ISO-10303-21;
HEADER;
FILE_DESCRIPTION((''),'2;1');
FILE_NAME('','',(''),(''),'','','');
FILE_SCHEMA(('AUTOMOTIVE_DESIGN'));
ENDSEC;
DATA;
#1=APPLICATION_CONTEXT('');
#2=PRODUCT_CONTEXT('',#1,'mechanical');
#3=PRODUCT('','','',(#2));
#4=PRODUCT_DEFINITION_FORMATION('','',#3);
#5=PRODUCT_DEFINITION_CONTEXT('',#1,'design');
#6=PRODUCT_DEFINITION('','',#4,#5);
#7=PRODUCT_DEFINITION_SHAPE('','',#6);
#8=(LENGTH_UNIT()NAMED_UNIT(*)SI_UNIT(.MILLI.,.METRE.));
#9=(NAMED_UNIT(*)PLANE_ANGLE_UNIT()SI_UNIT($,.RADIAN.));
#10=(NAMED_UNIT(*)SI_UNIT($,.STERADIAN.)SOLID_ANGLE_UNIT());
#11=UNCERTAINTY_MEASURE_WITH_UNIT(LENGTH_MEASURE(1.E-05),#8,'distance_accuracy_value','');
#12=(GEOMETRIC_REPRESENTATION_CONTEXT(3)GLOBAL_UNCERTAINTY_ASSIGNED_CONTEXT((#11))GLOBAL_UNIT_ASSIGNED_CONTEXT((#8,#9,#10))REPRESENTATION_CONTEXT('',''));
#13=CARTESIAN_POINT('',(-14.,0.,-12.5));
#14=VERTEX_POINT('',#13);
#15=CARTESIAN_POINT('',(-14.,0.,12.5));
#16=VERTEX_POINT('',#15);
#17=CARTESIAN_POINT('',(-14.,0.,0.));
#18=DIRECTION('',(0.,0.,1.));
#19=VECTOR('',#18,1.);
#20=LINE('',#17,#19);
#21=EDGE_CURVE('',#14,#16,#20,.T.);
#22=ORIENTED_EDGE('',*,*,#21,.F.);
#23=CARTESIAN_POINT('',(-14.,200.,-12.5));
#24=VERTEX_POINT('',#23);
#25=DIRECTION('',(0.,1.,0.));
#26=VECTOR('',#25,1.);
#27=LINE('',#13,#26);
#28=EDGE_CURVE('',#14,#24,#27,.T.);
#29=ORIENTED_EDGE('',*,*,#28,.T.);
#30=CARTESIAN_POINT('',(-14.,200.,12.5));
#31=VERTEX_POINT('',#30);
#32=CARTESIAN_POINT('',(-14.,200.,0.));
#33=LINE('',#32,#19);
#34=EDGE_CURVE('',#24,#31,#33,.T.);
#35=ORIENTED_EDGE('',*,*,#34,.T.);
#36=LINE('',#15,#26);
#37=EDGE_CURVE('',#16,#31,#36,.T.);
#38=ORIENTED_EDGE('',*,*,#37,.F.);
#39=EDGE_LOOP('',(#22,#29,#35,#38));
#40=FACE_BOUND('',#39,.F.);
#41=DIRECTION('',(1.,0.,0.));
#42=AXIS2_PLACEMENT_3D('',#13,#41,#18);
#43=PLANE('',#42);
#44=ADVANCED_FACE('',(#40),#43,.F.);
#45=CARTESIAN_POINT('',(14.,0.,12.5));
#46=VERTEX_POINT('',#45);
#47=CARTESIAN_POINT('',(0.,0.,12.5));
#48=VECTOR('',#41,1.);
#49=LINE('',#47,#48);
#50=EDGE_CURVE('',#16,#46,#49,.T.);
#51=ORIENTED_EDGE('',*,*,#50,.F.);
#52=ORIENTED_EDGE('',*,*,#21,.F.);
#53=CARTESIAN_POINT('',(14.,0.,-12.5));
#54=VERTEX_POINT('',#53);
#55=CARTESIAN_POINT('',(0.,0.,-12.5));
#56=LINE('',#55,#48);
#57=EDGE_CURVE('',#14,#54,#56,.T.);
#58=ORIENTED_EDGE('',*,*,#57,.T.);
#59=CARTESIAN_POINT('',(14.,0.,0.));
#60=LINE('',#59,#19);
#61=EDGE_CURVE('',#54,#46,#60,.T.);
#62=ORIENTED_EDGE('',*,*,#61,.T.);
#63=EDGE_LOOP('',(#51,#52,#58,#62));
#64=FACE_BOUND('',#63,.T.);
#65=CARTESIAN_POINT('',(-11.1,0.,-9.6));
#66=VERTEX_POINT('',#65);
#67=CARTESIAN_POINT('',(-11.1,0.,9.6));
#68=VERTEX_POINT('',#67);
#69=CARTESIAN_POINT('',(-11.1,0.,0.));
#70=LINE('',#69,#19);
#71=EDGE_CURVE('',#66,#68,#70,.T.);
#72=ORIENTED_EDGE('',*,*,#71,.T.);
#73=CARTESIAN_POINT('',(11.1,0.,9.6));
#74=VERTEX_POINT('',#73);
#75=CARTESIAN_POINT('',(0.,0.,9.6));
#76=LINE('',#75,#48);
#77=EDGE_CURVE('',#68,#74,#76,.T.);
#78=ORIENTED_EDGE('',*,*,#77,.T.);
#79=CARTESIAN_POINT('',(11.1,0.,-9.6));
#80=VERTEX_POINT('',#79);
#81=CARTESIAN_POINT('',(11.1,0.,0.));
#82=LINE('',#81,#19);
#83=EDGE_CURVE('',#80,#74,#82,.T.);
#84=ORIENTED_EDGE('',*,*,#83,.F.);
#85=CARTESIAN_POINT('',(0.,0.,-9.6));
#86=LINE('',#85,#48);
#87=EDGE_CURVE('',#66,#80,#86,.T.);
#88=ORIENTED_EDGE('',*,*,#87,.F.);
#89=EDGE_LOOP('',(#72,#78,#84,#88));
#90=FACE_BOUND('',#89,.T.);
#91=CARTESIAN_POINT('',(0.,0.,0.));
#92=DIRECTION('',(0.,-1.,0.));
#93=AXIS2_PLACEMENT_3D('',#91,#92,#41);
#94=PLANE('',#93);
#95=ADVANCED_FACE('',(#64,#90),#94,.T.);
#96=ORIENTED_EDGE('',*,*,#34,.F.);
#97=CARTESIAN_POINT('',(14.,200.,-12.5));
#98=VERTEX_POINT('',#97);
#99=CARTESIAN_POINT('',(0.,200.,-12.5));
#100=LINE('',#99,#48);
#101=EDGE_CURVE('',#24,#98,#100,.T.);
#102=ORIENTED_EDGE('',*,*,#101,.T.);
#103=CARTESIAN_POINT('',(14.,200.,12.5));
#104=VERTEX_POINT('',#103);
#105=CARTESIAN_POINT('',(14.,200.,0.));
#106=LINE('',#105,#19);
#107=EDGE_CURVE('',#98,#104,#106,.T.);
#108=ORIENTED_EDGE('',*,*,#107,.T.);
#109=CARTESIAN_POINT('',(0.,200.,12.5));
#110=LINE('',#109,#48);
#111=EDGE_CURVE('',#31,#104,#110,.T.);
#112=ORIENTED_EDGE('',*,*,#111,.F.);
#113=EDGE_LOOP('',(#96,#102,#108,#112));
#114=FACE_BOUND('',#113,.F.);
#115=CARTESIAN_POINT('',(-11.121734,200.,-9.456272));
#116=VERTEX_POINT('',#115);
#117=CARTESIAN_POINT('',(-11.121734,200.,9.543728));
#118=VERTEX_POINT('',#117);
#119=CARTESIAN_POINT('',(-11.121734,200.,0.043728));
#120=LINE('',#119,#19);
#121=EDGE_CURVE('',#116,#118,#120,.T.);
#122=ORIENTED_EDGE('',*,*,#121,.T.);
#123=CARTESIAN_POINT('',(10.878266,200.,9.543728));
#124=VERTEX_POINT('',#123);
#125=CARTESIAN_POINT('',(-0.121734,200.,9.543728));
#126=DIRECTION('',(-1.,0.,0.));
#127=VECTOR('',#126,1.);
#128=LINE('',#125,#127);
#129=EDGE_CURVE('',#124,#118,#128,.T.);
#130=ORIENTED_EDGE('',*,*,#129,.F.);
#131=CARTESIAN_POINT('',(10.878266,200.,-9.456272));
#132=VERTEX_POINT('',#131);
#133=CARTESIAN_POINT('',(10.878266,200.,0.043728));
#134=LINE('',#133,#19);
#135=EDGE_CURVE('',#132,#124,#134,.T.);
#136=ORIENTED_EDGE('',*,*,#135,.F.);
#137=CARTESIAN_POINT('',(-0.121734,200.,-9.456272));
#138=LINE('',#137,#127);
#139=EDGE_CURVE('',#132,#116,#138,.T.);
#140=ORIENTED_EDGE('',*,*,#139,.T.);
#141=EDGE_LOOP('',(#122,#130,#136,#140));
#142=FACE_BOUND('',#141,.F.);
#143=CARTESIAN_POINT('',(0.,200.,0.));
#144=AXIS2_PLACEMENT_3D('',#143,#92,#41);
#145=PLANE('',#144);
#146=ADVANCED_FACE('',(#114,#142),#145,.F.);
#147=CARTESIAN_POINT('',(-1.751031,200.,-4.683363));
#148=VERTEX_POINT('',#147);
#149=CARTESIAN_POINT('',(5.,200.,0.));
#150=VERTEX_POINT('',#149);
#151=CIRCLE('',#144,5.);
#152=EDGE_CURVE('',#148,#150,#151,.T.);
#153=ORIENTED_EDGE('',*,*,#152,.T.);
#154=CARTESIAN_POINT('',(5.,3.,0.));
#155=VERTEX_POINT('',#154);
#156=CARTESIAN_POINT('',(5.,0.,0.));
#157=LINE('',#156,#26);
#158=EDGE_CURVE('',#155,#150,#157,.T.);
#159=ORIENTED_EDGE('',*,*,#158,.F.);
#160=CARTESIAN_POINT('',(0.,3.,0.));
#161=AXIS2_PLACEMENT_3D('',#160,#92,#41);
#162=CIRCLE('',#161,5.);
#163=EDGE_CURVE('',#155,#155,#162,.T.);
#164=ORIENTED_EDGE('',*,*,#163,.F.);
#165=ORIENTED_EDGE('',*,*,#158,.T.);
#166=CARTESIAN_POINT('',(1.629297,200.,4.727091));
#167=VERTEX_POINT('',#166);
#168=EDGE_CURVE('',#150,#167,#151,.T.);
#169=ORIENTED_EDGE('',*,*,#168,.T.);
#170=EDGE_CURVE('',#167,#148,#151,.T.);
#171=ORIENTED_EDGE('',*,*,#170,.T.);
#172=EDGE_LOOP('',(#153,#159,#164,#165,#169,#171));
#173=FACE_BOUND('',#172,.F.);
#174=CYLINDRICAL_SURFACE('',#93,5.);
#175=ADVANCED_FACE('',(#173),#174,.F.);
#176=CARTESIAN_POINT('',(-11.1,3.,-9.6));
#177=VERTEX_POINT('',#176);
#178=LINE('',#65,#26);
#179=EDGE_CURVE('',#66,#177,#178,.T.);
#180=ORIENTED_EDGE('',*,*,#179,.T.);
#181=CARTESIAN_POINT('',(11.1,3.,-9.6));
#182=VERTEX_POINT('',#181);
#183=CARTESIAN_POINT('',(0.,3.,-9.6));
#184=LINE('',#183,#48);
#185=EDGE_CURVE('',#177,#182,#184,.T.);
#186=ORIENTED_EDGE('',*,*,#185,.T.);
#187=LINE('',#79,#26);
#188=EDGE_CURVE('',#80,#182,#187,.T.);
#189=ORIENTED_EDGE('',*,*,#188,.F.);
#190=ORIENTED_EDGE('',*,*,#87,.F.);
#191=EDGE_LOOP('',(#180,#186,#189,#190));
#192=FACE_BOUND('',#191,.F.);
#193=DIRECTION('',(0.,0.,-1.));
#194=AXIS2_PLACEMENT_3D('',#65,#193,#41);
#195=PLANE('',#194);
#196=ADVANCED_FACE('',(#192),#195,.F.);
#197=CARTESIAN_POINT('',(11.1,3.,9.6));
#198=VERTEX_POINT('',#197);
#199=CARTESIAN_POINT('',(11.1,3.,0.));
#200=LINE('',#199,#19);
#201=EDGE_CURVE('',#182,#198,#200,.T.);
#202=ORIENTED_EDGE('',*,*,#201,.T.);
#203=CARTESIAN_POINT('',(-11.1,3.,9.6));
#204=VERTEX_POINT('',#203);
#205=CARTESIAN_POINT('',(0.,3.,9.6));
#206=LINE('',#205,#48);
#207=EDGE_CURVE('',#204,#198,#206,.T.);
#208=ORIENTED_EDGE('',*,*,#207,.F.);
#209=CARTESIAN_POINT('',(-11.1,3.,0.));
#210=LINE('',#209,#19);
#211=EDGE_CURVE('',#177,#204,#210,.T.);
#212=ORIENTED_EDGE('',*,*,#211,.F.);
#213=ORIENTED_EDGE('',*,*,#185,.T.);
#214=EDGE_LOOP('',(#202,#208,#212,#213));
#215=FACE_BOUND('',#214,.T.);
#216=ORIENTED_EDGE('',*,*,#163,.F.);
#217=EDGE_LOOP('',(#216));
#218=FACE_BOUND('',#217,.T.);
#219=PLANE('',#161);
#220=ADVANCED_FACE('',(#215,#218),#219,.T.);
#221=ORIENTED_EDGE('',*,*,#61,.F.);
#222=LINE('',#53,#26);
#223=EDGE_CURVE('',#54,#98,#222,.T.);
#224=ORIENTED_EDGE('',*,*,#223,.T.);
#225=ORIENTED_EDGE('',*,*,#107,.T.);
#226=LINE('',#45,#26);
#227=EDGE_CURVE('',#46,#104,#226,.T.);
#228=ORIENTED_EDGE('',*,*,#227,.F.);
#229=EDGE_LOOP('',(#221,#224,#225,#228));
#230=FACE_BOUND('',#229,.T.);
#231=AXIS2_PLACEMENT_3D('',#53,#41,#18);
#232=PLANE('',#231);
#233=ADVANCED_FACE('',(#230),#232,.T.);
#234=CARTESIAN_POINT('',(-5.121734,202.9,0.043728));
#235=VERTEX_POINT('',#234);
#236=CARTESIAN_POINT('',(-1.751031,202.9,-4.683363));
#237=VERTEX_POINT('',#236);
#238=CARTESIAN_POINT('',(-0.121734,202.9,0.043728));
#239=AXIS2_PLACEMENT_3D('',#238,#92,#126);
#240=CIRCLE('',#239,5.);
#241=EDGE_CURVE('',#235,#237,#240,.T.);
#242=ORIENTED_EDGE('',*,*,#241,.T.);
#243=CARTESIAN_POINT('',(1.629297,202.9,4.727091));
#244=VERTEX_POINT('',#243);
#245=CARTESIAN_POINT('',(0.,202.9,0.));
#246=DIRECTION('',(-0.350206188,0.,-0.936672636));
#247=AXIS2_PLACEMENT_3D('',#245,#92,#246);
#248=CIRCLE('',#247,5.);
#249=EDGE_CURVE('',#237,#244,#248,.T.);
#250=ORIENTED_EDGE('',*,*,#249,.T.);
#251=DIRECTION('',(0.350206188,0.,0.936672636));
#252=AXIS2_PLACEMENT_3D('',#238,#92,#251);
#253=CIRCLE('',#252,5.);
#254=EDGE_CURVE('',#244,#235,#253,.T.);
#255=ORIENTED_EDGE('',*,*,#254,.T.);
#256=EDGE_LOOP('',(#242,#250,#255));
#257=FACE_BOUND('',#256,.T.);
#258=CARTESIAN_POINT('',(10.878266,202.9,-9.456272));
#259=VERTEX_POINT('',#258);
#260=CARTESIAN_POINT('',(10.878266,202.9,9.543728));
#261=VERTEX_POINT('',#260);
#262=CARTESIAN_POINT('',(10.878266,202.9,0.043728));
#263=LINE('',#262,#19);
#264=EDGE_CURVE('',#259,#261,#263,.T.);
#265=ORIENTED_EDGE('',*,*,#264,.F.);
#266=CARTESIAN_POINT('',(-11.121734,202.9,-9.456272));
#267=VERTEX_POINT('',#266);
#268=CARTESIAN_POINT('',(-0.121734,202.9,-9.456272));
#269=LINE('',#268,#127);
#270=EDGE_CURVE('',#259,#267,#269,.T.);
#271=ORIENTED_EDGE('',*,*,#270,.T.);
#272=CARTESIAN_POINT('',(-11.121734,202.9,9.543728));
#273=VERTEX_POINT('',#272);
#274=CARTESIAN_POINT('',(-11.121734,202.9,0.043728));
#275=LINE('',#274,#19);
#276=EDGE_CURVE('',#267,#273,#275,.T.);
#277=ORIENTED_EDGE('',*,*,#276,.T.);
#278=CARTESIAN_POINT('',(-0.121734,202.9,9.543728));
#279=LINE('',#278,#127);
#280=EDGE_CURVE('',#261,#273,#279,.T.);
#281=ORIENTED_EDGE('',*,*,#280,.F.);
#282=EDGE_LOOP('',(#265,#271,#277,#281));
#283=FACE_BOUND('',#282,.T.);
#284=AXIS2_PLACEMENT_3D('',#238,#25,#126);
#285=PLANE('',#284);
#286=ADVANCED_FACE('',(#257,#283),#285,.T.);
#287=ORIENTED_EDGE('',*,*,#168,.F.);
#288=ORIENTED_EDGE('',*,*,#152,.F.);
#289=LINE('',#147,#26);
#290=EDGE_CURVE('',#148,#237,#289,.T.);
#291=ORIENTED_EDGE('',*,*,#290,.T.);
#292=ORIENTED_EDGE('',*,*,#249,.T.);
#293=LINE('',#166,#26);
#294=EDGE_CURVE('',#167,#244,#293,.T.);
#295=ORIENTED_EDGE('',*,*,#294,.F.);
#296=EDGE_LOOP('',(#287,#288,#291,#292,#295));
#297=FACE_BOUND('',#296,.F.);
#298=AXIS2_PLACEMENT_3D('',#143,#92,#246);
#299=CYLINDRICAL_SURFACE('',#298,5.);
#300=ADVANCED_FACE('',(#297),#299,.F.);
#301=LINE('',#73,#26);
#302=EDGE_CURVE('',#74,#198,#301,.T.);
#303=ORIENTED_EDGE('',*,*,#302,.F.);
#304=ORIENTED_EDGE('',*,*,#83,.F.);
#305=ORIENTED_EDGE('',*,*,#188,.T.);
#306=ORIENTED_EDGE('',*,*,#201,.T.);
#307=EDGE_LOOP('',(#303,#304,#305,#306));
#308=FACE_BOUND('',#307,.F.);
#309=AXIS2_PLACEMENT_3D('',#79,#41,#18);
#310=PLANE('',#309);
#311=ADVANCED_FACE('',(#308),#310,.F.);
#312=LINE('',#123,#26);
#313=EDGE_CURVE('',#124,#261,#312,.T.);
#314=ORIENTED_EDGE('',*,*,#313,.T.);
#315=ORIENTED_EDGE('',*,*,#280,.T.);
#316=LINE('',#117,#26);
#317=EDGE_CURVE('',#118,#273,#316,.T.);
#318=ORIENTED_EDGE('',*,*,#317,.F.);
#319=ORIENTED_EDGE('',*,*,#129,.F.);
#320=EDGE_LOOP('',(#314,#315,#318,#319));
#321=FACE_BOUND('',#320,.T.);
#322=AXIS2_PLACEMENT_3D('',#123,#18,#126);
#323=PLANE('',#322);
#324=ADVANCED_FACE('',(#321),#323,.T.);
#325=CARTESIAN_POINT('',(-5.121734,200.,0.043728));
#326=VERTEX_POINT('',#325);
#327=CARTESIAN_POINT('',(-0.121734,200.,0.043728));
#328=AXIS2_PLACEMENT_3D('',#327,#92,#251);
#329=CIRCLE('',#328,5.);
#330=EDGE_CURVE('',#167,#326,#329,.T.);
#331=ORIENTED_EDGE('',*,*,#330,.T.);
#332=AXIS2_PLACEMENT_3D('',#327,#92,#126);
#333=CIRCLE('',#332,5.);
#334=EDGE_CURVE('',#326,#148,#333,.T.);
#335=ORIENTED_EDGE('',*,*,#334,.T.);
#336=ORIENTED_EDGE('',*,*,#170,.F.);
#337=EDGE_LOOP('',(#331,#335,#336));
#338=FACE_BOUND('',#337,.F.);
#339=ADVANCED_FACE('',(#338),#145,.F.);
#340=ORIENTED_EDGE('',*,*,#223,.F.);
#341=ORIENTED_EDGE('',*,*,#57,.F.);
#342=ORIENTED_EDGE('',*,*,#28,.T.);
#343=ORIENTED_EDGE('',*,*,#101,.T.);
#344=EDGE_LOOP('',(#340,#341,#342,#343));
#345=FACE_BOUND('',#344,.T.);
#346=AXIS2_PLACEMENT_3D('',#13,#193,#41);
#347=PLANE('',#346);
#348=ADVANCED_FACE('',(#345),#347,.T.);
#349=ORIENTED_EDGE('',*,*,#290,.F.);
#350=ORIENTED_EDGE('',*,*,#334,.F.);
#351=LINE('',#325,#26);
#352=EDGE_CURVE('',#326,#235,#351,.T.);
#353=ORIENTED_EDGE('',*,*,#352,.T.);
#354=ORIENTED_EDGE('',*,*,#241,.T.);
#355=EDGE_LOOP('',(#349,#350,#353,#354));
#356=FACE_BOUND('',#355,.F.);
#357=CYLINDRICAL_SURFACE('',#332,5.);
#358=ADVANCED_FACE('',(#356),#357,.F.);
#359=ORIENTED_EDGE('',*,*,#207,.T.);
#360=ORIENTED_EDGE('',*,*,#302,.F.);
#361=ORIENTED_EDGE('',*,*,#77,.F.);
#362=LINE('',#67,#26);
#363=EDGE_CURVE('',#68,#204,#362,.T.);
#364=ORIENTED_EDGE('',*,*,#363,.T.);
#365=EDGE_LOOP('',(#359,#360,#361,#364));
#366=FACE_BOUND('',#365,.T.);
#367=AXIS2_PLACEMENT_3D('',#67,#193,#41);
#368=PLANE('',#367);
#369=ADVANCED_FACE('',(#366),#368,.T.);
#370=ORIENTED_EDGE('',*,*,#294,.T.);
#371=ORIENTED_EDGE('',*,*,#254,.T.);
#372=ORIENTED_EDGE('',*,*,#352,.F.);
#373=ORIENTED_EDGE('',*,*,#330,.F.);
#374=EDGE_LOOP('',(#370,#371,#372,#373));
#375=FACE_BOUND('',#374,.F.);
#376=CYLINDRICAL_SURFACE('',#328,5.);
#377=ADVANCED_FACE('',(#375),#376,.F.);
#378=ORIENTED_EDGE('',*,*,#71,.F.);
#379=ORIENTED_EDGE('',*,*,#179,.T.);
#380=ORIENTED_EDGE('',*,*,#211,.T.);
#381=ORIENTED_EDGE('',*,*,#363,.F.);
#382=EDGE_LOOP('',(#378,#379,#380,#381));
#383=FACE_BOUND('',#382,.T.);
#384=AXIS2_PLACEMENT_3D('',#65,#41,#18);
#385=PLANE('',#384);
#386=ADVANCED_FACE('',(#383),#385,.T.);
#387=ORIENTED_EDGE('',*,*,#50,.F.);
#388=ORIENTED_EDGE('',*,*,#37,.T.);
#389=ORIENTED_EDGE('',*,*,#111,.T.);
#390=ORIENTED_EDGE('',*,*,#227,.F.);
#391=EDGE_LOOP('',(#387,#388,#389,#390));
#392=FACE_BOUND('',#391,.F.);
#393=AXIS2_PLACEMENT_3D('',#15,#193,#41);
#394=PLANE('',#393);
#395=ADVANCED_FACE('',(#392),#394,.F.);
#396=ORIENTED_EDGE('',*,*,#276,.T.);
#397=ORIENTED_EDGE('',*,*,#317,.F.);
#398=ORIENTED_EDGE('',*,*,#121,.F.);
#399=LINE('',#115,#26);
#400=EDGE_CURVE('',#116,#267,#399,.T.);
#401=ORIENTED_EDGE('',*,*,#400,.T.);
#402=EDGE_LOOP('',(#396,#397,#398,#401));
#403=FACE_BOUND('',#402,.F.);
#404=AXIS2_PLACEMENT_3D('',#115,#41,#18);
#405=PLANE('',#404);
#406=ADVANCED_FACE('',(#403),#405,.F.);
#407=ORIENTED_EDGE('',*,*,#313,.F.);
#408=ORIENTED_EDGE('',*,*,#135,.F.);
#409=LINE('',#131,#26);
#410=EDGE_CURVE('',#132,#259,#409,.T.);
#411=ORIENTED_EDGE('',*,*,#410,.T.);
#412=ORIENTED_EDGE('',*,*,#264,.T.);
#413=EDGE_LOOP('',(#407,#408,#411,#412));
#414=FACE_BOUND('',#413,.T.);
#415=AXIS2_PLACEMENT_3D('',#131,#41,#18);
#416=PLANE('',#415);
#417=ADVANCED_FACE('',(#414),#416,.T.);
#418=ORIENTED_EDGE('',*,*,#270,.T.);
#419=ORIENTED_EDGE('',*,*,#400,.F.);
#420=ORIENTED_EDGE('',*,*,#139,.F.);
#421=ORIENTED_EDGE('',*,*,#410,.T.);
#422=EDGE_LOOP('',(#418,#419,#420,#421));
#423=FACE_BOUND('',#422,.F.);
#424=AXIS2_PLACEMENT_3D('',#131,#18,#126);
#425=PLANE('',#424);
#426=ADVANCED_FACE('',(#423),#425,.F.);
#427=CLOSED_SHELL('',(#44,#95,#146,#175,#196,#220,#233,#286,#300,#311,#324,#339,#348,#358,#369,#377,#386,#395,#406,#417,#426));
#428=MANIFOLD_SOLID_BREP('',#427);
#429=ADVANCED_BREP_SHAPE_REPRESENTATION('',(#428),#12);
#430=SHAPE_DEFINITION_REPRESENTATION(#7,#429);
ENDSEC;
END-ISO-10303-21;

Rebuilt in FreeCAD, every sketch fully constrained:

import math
import FreeCAD as App
import Part
import Sketcher
from FreeCAD import Vector


def add_polygon(sketch, points):
    """Adds a closed chain of lines whose ends are joined by coincident constraints."""
    first, n = sketch.GeometryCount, len(points)
    for a, b in zip(points, points[1:] + points[:1]):
        sketch.addGeometry(Part.LineSegment(App.Vector(*a, 0), App.Vector(*b, 0)), False)
    for i in range(n):
        sketch.addConstraint(Sketcher.Constraint("Coincident", first + i, 2, first + (i + 1) % n, 1))

doc = App.newDocument("Part")
body = doc.addObject("PartDesign::Body", "Body")

# Sketch on XZ plane
sketch1 = doc.addObject("Sketcher::SketchObject", "Sketch")
body.addObject(sketch1)
sketch1.AttachmentSupport = (doc.XZ_Plane, [""])
sketch1.MapMode = "FlatFace"
add_polygon(sketch1, [(-14, 12), (-14, -12), (14, -12), (14, 12)])  # lines 0-3
sketch1.addGeometry(Part.Circle(Vector(0, 0, 0), Vector(0, 0, 1), 5), False)  # 4
sketch1.addConstraint(Sketcher.Constraint("Vertical", 0))
sketch1.addConstraint(Sketcher.Constraint("Horizontal", 1))
sketch1.addConstraint(Sketcher.Constraint("Vertical", 2))
sketch1.addConstraint(Sketcher.Constraint("Horizontal", 3))
sketch1.addConstraint(Sketcher.Constraint("Coincident", 4, 3, -1, 1))
sketch1.addConstraint(Sketcher.Constraint("Symmetric", 0, 2, 2, 2, -1, 1))
sketch1.addConstraint(Sketcher.Constraint("Diameter", 4, 10.0))
sketch1.addConstraint(Sketcher.Constraint("DistanceX", 1, 1, 1, 2, 28.0))
sketch1.addConstraint(Sketcher.Constraint("DistanceY", 0, 2, 0, 1, 25.0))
pad1 = doc.addObject("PartDesign::Pad", "Pad")
body.addObject(pad1)
pad1.Profile = sketch1
pad1.Length = 200
pad1.Reversed = True

# Sketch on XZ plane
sketch2 = doc.addObject("Sketcher::SketchObject", "Sketch001")
body.addObject(sketch2)
sketch2.AttachmentSupport = (doc.XZ_Plane, [""])
sketch2.MapMode = "FlatFace"
add_polygon(sketch2, [(-11, 10), (-11, -10), (11, -10), (11, 10)])  # lines 0-3
sketch2.addGeometry(Part.Circle(Vector(0, 0, 0), Vector(0, 0, 1), 5), False)  # 4
sketch2.addConstraint(Sketcher.Constraint("Vertical", 0))
sketch2.addConstraint(Sketcher.Constraint("Horizontal", 1))
sketch2.addConstraint(Sketcher.Constraint("Vertical", 2))
sketch2.addConstraint(Sketcher.Constraint("Horizontal", 3))
sketch2.addConstraint(Sketcher.Constraint("Coincident", 4, 3, -1, 1))
sketch2.addConstraint(Sketcher.Constraint("Symmetric", 0, 2, 2, 2, -1, 1))
sketch2.addConstraint(Sketcher.Constraint("Diameter", 4, 10.0))
sketch2.addConstraint(Sketcher.Constraint("DistanceX", 1, 1, 1, 2, 22.2))
sketch2.addConstraint(Sketcher.Constraint("DistanceY", 0, 2, 0, 1, 19.2))
pocket1 = doc.addObject("PartDesign::Pocket", "Pocket")
body.addObject(pocket1)
pocket1.Profile = sketch2
pocket1.Length = 3

# Sketch on XZ plane
sketch3 = doc.addObject("Sketcher::SketchObject", "Sketch002")
body.addObject(sketch3)
sketch3.AttachmentSupport = (doc.XZ_Plane, [""])
sketch3.MapMode = "FlatFace"
sketch3.AttachmentOffset = App.Placement(Vector(0, 0, -200), App.Rotation())
add_polygon(sketch3, [(10.878266, 9.543728), (10.878266, -9.456272), (-11.121734, -9.456272), (-11.121734, 9.543728)])  # lines 0-3
sketch3.addGeometry(Part.ArcOfCircle(Part.Circle(Vector(0, 0, 0), Vector(0, 0, 1), 5), math.radians(-110.499927), math.radians(70.982356)), False)  # 4
sketch3.addGeometry(Part.ArcOfCircle(Part.Circle(Vector(-0.121734, 0.043728, 0), Vector(0, 0, 1), 5), math.radians(69.500073), math.radians(180)), False)  # 5
sketch3.addGeometry(Part.ArcOfCircle(Part.Circle(Vector(-0.121734, 0.043728, 0), Vector(0, 0, 1), 5), math.radians(180), math.radians(250.982356)), False)  # 6
sketch3.addConstraint(Sketcher.Constraint("Coincident", 4, 2, 5, 1))
sketch3.addConstraint(Sketcher.Constraint("Tangent", 5, 2, 6, 1))
sketch3.addConstraint(Sketcher.Constraint("Coincident", 6, 2, 4, 1))
sketch3.addConstraint(Sketcher.Constraint("Vertical", 0))
sketch3.addConstraint(Sketcher.Constraint("Horizontal", 1))
sketch3.addConstraint(Sketcher.Constraint("Vertical", 2))
sketch3.addConstraint(Sketcher.Constraint("Horizontal", 3))
sketch3.addConstraint(Sketcher.Constraint("Coincident", 4, 3, -1, 1))
sketch3.addConstraint(Sketcher.Constraint("Equal", 4, 5))
sketch3.addConstraint(Sketcher.Constraint("Equal", 5, 6))
sketch3.addConstraint(Sketcher.Constraint("Horizontal", 6, 3, 5, 2))
sketch3.addConstraint(Sketcher.Constraint("Radius", 4, 5.0))
sketch3.addConstraint(Sketcher.Constraint("DistanceX", 1, 2, 1, 1, 22.0))
sketch3.addConstraint(Sketcher.Constraint("DistanceY", 0, 2, 0, 1, 19.0))
sketch3.addConstraint(Sketcher.Constraint("DistanceX", 5, 3, 0, 2, 11.0))
sketch3.addConstraint(Sketcher.Constraint("DistanceY", 0, 2, 5, 3, 9.5))
sketch3.addConstraint(Sketcher.Constraint("DistanceY", -1, 1, 5, 3, 0.043728))
sketch3.addConstraint(Sketcher.Constraint("DistanceY", -1, 1, 4, 2, 4.727091))
pad2 = doc.addObject("PartDesign::Pad", "Pad001")
body.addObject(pad2)
pad2.Profile = sketch3
pad2.Length = 2.9
pad2.Reversed = True

doc.recompute()
